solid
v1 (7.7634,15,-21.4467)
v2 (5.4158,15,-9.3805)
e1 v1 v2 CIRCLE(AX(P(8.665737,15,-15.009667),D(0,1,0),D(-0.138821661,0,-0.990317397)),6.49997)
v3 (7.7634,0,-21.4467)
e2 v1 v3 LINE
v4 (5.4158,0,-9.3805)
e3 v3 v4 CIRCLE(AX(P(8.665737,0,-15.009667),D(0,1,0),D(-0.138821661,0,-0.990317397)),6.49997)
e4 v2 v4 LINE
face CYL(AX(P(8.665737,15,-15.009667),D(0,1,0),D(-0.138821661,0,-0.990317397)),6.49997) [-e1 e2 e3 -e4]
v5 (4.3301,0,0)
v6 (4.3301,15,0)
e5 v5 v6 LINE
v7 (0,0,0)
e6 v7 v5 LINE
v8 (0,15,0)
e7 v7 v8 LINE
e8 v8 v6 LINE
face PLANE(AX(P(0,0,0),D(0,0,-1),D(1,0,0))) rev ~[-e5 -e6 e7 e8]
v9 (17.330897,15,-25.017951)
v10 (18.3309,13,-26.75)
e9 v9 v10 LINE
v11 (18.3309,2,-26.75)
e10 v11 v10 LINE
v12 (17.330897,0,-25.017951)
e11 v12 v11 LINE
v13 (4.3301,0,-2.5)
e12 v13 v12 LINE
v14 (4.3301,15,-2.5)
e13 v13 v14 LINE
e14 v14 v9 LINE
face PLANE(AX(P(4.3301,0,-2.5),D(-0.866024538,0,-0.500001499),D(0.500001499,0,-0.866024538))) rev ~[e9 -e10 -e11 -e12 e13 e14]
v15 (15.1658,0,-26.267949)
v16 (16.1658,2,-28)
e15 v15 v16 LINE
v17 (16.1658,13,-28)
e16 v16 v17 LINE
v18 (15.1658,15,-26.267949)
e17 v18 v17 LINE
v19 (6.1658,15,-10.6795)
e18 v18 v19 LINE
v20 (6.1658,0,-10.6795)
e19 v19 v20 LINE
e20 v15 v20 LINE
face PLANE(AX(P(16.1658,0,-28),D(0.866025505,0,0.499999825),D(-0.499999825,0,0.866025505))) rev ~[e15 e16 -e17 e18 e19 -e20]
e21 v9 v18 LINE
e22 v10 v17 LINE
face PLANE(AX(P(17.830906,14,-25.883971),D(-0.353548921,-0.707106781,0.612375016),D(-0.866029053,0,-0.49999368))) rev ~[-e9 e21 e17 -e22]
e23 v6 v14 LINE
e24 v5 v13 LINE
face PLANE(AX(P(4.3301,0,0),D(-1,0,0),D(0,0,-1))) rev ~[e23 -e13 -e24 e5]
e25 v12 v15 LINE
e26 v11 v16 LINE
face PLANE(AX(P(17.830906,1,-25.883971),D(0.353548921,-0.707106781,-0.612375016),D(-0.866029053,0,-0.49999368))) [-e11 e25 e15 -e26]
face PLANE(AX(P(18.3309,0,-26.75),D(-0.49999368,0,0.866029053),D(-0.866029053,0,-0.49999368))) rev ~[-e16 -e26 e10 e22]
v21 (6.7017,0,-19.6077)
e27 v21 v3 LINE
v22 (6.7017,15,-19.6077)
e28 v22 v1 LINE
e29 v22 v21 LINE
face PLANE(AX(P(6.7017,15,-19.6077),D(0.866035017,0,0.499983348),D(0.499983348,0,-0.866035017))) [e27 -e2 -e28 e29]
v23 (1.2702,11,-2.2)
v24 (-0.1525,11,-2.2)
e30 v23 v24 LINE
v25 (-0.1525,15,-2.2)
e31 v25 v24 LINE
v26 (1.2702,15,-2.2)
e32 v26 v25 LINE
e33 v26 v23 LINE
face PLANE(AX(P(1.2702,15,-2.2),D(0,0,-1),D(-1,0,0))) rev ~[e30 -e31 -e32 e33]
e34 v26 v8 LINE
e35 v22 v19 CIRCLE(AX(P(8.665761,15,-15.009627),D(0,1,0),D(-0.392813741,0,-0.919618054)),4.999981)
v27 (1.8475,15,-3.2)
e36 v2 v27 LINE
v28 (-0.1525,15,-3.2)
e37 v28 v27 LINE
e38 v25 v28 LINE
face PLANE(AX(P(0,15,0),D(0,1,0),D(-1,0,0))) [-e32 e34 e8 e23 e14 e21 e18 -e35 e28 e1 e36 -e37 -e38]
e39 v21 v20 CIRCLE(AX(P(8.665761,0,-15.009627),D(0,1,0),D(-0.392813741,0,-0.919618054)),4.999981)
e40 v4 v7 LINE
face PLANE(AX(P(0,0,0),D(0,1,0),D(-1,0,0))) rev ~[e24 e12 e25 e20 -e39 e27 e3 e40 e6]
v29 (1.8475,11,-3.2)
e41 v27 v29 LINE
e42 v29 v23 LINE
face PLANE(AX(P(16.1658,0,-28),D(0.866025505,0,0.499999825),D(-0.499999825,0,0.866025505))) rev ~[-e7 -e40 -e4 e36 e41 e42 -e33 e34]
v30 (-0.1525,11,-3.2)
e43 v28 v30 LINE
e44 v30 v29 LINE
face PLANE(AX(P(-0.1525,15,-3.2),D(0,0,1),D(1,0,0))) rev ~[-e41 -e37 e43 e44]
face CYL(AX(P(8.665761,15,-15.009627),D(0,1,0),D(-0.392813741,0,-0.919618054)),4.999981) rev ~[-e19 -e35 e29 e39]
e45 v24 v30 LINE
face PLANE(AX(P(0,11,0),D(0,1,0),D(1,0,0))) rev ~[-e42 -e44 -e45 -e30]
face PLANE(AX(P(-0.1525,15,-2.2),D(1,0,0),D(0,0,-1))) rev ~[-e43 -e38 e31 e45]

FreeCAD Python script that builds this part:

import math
import FreeCAD as App
import Part
import Sketcher

V = App.Vector
Q = App.Units.Quantity


def edges_at(feature, points):
    """Names of the edges that pass closest to the given points."""
    edges = feature.Shape.Edges
    near = lambda p: min(range(len(edges)), key=lambda i: edges[i].distToShape(Part.Vertex(*p))[0])
    return sorted({f"Edge{near(p) + 1}" for p in points})


def add_polygon(sketch, points):
    """Adds a closed chain of lines whose ends are joined by coincident constraints."""
    first, n = sketch.GeometryCount, len(points)
    for a, b in zip(points, points[1:] + points[:1]):
        sketch.addGeometry(Part.LineSegment(App.Vector(*a, 0), App.Vector(*b, 0)), False)
    for i in range(n):
        sketch.addConstraint(Sketcher.Constraint("Coincident", first + i, 2, first + (i + 1) % n, 1))

doc = App.newDocument("Part")
body = doc.addObject("PartDesign::Body", "Body")

# Sketch on XZ plane
sketch1 = doc.addObject("Sketcher::SketchObject", "Sketch")
body.addObject(sketch1)
sketch1.AttachmentSupport = (doc.XZ_Plane, [""])
sketch1.MapMode = "FlatFace"
add_polygon(sketch1, [(16.2, -28), (0, 0), (4.3, 0), (4.3, -2.5), (18.3, -26.8)])  # lines 0-4
sketch1.addConstraint([
    Sketcher.Constraint("Horizontal", 1),
    Sketcher.Constraint("Vertical", 2),
    Sketcher.Constraint("Coincident", 0, 2, -1, 1),
    Sketcher.Constraint("Parallel", 0, 3),
    Sketcher.Constraint("Perpendicular", 3, 4),
    Sketcher.Constraint("Angle", 3, Q("-60 deg")),
    Sketcher.Constraint("DistanceY", 2, 2, 2, 1, 2.5),
    Sketcher.Constraint("DistanceY", 4, 2, -1, 1, 28.0),
    Sketcher.Constraint("Distance", 4, 2.5),
])
pad1 = doc.addObject("PartDesign::Pad", "Pad")
body.addObject(pad1)
pad1.Profile = sketch1
pad1.Length = 15
pad1.Reversed = True

# Sketch on XZ plane
sketch2 = doc.addObject("Sketcher::SketchObject", "Sketch001")
body.addObject(sketch2)
sketch2.AttachmentSupport = (doc.XZ_Plane, [""])
sketch2.MapMode = "FlatFace"
sketch2.AttachmentOffset = App.Placement(V(0, 0, -15), App.Rotation())
sketch2.addGeometry([
    Part.LineSegment(V(5.4, -9.4, 0), V(6.2, -10.7, 0)),
    Part.ArcOfCircle(Part.Circle(V(8.7, -15, 0), V(0, 0, 1), 5), math.radians(120), math.radians(247)),
    Part.LineSegment(V(6.7, -19.6, 0), V(7.8, -21.4, 0)),
    Part.ArcOfCircle(Part.Circle(V(8.7, -15, 0), V(0, 0, 1), 6.5), math.radians(120), math.radians(262)),
], False)
sketch2.addConstraint([
    Sketcher.Constraint("Coincident", 0, 2, 1, 1),
    Sketcher.Constraint("Coincident", 1, 2, 2, 1),
    Sketcher.Constraint("Coincident", 2, 2, 3, 2),
    Sketcher.Constraint("Coincident", 3, 1, 0, 1),
    Sketcher.Constraint("Coincident", 3, 3, 1, 3),
    Sketcher.Constraint("Parallel", 0, 2),
    Sketcher.Constraint("Radius", 1, 5.0),
    Sketcher.Constraint("Distance", 0, 1.5),
    Sketcher.Constraint("Angle", 0, Q("-60 deg")),
    Sketcher.Constraint("DistanceX", 0, 2, 1, 3, 2.5),
    Sketcher.Constraint("DistanceX", 1, 2, 1, 3, 1.964),
    Sketcher.Constraint("DistanceX", -1, 1, 1, 3, 8.6658),
    Sketcher.Constraint("DistanceY", 1, 3, -1, 1, 15.0096),
])
pad2 = doc.addObject("PartDesign::Pad", "Pad001")
body.addObject(pad2)
pad2.Profile = sketch2
pad2.Length = 15

# Sketch on XZ plane
sketch3 = doc.addObject("Sketcher::SketchObject", "Sketch002")
body.addObject(sketch3)
sketch3.AttachmentSupport = (doc.XZ_Plane, [""])
sketch3.MapMode = "FlatFace"
sketch3.AttachmentOffset = App.Placement(V(0, 0, -15), App.Rotation())
add_polygon(sketch3, [(-0.2, -2.2), (1.3, -2.2), (1.8, -3.2), (-0.2, -3.2)])  # lines 0-3
sketch3.addConstraint([
    Sketcher.Constraint("Horizontal", 0),
    Sketcher.Constraint("Horizontal", 2),
    Sketcher.Constraint("Vertical", 3),
    Sketcher.Constraint("DistanceX", 2, 2, 2, 1, 2.0),
    Sketcher.Constraint("DistanceY", 3, 1, 3, 2, 1.0),
    Sketcher.Constraint("DistanceY", 0, 2, -1, 1, 2.2),
    Sketcher.Constraint("DistanceX", 0, 1, 0, 2, 1.4227),
    Sketcher.Constraint("DistanceX", -1, 1, 0, 2, 1.2702),
])
pad3 = doc.addObject("PartDesign::Pad", "Pad002")
body.addObject(pad3)
pad3.Profile = sketch3
pad3.Length = 4
doc.recompute()

chamfer = doc.addObject("PartDesign::Chamfer", "Chamfer")
body.addObject(chamfer)
chamfer.Base = (pad3, edges_at(pad3, [(17.248, 15, -27.375), (17.248, 0, -27.375)]))
chamfer.Size = 2

doc.recompute()
